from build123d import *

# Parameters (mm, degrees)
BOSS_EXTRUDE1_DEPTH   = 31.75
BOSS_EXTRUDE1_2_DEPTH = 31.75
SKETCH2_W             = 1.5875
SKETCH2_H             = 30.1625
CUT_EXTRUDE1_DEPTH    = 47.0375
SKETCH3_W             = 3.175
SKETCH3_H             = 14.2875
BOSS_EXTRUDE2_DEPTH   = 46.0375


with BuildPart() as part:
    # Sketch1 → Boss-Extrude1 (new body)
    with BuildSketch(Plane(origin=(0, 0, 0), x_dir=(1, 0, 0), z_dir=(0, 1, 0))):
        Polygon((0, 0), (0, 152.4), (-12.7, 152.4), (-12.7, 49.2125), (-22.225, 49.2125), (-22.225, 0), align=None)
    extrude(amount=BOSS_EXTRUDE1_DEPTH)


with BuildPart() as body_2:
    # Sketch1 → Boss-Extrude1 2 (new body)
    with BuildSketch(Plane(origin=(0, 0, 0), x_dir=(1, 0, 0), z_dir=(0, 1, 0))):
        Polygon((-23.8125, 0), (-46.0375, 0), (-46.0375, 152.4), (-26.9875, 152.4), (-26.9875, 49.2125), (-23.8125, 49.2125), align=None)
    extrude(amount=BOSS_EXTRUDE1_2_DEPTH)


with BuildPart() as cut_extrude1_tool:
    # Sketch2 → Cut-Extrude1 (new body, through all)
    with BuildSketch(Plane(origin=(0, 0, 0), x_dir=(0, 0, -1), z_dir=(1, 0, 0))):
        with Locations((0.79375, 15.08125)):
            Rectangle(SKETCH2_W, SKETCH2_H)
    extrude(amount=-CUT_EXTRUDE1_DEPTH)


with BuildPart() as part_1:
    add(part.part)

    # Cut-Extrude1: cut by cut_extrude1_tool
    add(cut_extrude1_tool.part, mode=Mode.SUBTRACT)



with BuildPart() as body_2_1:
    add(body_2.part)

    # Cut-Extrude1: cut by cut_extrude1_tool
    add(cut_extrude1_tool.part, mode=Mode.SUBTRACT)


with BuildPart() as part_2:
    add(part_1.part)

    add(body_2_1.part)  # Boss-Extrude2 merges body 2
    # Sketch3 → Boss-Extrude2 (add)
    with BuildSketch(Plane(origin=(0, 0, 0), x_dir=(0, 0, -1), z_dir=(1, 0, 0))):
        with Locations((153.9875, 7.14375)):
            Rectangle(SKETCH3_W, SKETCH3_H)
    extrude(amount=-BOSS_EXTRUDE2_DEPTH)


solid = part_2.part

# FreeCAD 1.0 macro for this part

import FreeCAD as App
import Part
import Sketcher

V = App.Vector
Q = App.Units.Quantity

doc = App.newDocument("Part")
body = doc.addObject("PartDesign::Body", "Body")

sketch1 = body.newObject("Sketcher::SketchObject", "Sketch")
sketch1.AttachmentSupport = (doc.getObject("XZ_Plane"), [""])
sketch1.MapMode = "FlatFace"
sketch1.addGeometry(Part.LineSegment(V(0, 0, 0), V(0, -152.4, 0)), False)
sketch1.addGeometry(Part.LineSegment(V(0, -152.4, 0), V(-12.7, -152.4, 0)), False)
sketch1.addGeometry(Part.LineSegment(V(-12.7, -152.4, 0), V(-12.7, -49.2125, 0)), False)
sketch1.addGeometry(Part.LineSegment(V(-12.7, -49.2125, 0), V(-22.225, -49.2125, 0)), False)
sketch1.addGeometry(Part.LineSegment(V(-22.225, -49.2125, 0), V(-22.225, 0, 0)), False)
sketch1.addGeometry(Part.LineSegment(V(-22.225, 0, 0), V(0, 0, 0)), False)
sketch1.addConstraint(Sketcher.Constraint("Coincident", 0, 2, 1, 1))
sketch1.addConstraint(Sketcher.Constraint("Coincident", 1, 2, 2, 1))
sketch1.addConstraint(Sketcher.Constraint("Coincident", 2, 2, 3, 1))
sketch1.addConstraint(Sketcher.Constraint("Coincident", 3, 2, 4, 1))
sketch1.addConstraint(Sketcher.Constraint("Coincident", 4, 2, 5, 1))
sketch1.addConstraint(Sketcher.Constraint("Coincident", 5, 2, 0, 1))
sketch1.addConstraint(Sketcher.Constraint("Vertical", 0))
sketch1.addConstraint(Sketcher.Constraint("Horizontal", 1))
sketch1.addConstraint(Sketcher.Constraint("Vertical", 2))
sketch1.addConstraint(Sketcher.Constraint("Horizontal", 3))
sketch1.addConstraint(Sketcher.Constraint("Vertical", 4))
sketch1.addConstraint(Sketcher.Constraint("Horizontal", 5))
sketch1.addConstraint(Sketcher.Constraint("Coincident", 5, 2, -1, 1))
sketch1.addConstraint(Sketcher.Constraint("DistanceY", 0, 2, 0, 1, Q("6 in")))
sketch1.addConstraint(Sketcher.Constraint("DistanceX", 1, 2, 1, 1, Q("0.5 in")))
sketch1.addConstraint(Sketcher.Constraint("DistanceX", 3, 2, 3, 1, Q("0.375 in")))
sketch1.addConstraint(Sketcher.Constraint("DistanceY", 2, 1, 2, 2, Q("4.0625 in")))
pad1 = body.newObject("PartDesign::Pad", "Pad")
pad1.Profile = sketch1
pad1.Length = Q("1.25 in")
pad1.Reversed = True
body2 = doc.addObject("PartDesign::Body", "Body001")

sketch2 = body2.newObject("Sketcher::SketchObject", "Sketch001")
sketch2.AttachmentSupport = (doc.getObject("XZ_Plane001"), [""])
sketch2.MapMode = "FlatFace"
sketch2.addGeometry(Part.LineSegment(V(-46.0375, 0, 0), V(-23.8125, 0, 0)), False)
sketch2.addGeometry(Part.LineSegment(V(-23.8125, 0, 0), V(-23.8125, -49.2125, 0)), False)
sketch2.addGeometry(Part.LineSegment(V(-23.8125, -49.2125, 0), V(-26.9875, -49.2125, 0)), False)
sketch2.addGeometry(Part.LineSegment(V(-26.9875, -49.2125, 0), V(-26.9875, -152.4, 0)), False)
sketch2.addGeometry(Part.LineSegment(V(-26.9875, -152.4, 0), V(-46.0375, -152.4, 0)), False)
sketch2.addGeometry(Part.LineSegment(V(-46.0375, -152.4, 0), V(-46.0375, 0, 0)), False)
sketch2.addConstraint(Sketcher.Constraint("Coincident", 0, 2, 1, 1))
sketch2.addConstraint(Sketcher.Constraint("Coincident", 1, 2, 2, 1))
sketch2.addConstraint(Sketcher.Constraint("Coincident", 2, 2, 3, 1))
sketch2.addConstraint(Sketcher.Constraint("Coincident", 3, 2, 4, 1))
sketch2.addConstraint(Sketcher.Constraint("Coincident", 4, 2, 5, 1))
sketch2.addConstraint(Sketcher.Constraint("Coincident", 5, 2, 0, 1))
sketch2.addConstraint(Sketcher.Constraint("Horizontal", 0))
sketch2.addConstraint(Sketcher.Constraint("Vertical", 1))
sketch2.addConstraint(Sketcher.Constraint("Horizontal", 2))
sketch2.addConstraint(Sketcher.Constraint("Vertical", 3))
sketch2.addConstraint(Sketcher.Constraint("Horizontal", 4))
sketch2.addConstraint(Sketcher.Constraint("Vertical", 5))
sketch2.addConstraint(Sketcher.Constraint("PointOnObject", 0, 2, -1))
sketch2.addConstraint(Sketcher.Constraint("DistanceY", 5, 1, 5, 2, Q("6 in")))
sketch2.addConstraint(Sketcher.Constraint("DistanceX", 4, 2, 4, 1, Q("0.75 in")))
sketch2.addConstraint(Sketcher.Constraint("DistanceX", 0, 1, 0, 2, Q("0.875 in")))
sketch2.addConstraint(Sketcher.Constraint("DistanceY", 1, 2, 1, 1, Q("1.9375 in")))
sketch2.addConstraint(Sketcher.Constraint("DistanceX", 0, 2, -1, 1, Q("0.9375 in")))
pad2 = body2.newObject("PartDesign::Pad", "Pad001")
pad2.Profile = sketch2
pad2.Length = Q("1.25 in")
pad2.Reversed = True
body3 = doc.addObject("PartDesign::Body", "Body002")

sketch3 = body3.newObject("Sketcher::SketchObject", "Sketch002")
sketch3.AttachmentSupport = (doc.getObject("YZ_Plane002"), [""])
sketch3.MapMode = "FlatFace"
sketch3.addGeometry(Part.LineSegment(V(30.1625, 0, 0), V(0, 0, 0)), False)
sketch3.addGeometry(Part.LineSegment(V(0, 0, 0), V(0, -1.5875, 0)), False)
sketch3.addGeometry(Part.LineSegment(V(0, -1.5875, 0), V(30.1625, -1.5875, 0)), False)
sketch3.addGeometry(Part.LineSegment(V(30.1625, -1.5875, 0), V(30.1625, 0, 0)), False)
sketch3.addConstraint(Sketcher.Constraint("Coincident", 0, 2, 1, 1))
sketch3.addConstraint(Sketcher.Constraint("Coincident", 1, 2, 2, 1))
sketch3.addConstraint(Sketcher.Constraint("Coincident", 2, 2, 3, 1))
sketch3.addConstraint(Sketcher.Constraint("Coincident", 3, 2, 0, 1))
sketch3.addConstraint(Sketcher.Constraint("Horizontal", 0))
sketch3.addConstraint(Sketcher.Constraint("Vertical", 1))
sketch3.addConstraint(Sketcher.Constraint("Horizontal", 2))
sketch3.addConstraint(Sketcher.Constraint("Vertical", 3))
sketch3.addConstraint(Sketcher.Constraint("Coincident", 0, 2, -1, 1))
sketch3.addConstraint(Sketcher.Constraint("DistanceX", 0, 2, 0, 1, Q("1.1875 in")))
sketch3.addConstraint(Sketcher.Constraint("DistanceY", 1, 2, 1, 1, Q("0.0625 in")))
pad3 = body3.newObject("PartDesign::Pad", "Pad002")
pad3.Profile = sketch3
pad3.Length = 47.0375
pad3.Reversed = True
doc.recompute()

body4 = doc.addObject("PartDesign::Body", "Body003")
body4.BaseFeature = body3
boolean = body.newObject("PartDesign::Boolean", "Boolean")
boolean.Type = "Cut"
boolean.addObjects([body4])
doc.recompute()

boolean2 = body2.newObject("PartDesign::Boolean", "Boolean001")
boolean2.Type = "Cut"
boolean2.addObjects([body3])
body.AllowCompound = True
doc.recompute()

boolean3 = body.newObject("PartDesign::Boolean", "Boolean002")
boolean3.Type = "Fuse"
boolean3.addObjects([body2])

sketch4 = body.newObject("Sketcher::SketchObject", "Sketch003")
sketch4.AttachmentSupport = (doc.getObject("YZ_Plane"), [""])
sketch4.MapMode = "FlatFace"
sketch4.addGeometry(Part.LineSegment(V(14.2875, -152.4, 0), V(0, -152.4, 0)), False)
sketch4.addGeometry(Part.LineSegment(V(0, -152.4, 0), V(0, -155.575, 0)), False)
sketch4.addGeometry(Part.LineSegment(V(0, -155.575, 0), V(14.2875, -155.575, 0)), False)
sketch4.addGeometry(Part.LineSegment(V(14.2875, -155.575, 0), V(14.2875, -152.4, 0)), False)
sketch4.addConstraint(Sketcher.Constraint("Coincident", 0, 2, 1, 1))
sketch4.addConstraint(Sketcher.Constraint("Coincident", 1, 2, 2, 1))
sketch4.addConstraint(Sketcher.Constraint("Coincident", 2, 2, 3, 1))
sketch4.addConstraint(Sketcher.Constraint("Coincident", 3, 2, 0, 1))
sketch4.addConstraint(Sketcher.Constraint("Horizontal", 0))
sketch4.addConstraint(Sketcher.Constraint("Vertical", 1))
sketch4.addConstraint(Sketcher.Constraint("Horizontal", 2))
sketch4.addConstraint(Sketcher.Constraint("Vertical", 3))
sketch4.addConstraint(Sketcher.Constraint("PointOnObject", 0, 2, -2))
sketch4.addConstraint(Sketcher.Constraint("DistanceY", 0, 2, -1, 1, Q("6 in")))
sketch4.addConstraint(Sketcher.Constraint("DistanceX", 0, 2, 0, 1, Q("0.5625 in")))
sketch4.addConstraint(Sketcher.Constraint("DistanceY", 1, 2, 1, 1, Q("0.125 in")))
pad4 = body.newObject("PartDesign::Pad", "Pad003")
pad4.Profile = sketch4
pad4.Length = Q("1.8125 in")
pad4.Reversed = True

doc.recompute()
